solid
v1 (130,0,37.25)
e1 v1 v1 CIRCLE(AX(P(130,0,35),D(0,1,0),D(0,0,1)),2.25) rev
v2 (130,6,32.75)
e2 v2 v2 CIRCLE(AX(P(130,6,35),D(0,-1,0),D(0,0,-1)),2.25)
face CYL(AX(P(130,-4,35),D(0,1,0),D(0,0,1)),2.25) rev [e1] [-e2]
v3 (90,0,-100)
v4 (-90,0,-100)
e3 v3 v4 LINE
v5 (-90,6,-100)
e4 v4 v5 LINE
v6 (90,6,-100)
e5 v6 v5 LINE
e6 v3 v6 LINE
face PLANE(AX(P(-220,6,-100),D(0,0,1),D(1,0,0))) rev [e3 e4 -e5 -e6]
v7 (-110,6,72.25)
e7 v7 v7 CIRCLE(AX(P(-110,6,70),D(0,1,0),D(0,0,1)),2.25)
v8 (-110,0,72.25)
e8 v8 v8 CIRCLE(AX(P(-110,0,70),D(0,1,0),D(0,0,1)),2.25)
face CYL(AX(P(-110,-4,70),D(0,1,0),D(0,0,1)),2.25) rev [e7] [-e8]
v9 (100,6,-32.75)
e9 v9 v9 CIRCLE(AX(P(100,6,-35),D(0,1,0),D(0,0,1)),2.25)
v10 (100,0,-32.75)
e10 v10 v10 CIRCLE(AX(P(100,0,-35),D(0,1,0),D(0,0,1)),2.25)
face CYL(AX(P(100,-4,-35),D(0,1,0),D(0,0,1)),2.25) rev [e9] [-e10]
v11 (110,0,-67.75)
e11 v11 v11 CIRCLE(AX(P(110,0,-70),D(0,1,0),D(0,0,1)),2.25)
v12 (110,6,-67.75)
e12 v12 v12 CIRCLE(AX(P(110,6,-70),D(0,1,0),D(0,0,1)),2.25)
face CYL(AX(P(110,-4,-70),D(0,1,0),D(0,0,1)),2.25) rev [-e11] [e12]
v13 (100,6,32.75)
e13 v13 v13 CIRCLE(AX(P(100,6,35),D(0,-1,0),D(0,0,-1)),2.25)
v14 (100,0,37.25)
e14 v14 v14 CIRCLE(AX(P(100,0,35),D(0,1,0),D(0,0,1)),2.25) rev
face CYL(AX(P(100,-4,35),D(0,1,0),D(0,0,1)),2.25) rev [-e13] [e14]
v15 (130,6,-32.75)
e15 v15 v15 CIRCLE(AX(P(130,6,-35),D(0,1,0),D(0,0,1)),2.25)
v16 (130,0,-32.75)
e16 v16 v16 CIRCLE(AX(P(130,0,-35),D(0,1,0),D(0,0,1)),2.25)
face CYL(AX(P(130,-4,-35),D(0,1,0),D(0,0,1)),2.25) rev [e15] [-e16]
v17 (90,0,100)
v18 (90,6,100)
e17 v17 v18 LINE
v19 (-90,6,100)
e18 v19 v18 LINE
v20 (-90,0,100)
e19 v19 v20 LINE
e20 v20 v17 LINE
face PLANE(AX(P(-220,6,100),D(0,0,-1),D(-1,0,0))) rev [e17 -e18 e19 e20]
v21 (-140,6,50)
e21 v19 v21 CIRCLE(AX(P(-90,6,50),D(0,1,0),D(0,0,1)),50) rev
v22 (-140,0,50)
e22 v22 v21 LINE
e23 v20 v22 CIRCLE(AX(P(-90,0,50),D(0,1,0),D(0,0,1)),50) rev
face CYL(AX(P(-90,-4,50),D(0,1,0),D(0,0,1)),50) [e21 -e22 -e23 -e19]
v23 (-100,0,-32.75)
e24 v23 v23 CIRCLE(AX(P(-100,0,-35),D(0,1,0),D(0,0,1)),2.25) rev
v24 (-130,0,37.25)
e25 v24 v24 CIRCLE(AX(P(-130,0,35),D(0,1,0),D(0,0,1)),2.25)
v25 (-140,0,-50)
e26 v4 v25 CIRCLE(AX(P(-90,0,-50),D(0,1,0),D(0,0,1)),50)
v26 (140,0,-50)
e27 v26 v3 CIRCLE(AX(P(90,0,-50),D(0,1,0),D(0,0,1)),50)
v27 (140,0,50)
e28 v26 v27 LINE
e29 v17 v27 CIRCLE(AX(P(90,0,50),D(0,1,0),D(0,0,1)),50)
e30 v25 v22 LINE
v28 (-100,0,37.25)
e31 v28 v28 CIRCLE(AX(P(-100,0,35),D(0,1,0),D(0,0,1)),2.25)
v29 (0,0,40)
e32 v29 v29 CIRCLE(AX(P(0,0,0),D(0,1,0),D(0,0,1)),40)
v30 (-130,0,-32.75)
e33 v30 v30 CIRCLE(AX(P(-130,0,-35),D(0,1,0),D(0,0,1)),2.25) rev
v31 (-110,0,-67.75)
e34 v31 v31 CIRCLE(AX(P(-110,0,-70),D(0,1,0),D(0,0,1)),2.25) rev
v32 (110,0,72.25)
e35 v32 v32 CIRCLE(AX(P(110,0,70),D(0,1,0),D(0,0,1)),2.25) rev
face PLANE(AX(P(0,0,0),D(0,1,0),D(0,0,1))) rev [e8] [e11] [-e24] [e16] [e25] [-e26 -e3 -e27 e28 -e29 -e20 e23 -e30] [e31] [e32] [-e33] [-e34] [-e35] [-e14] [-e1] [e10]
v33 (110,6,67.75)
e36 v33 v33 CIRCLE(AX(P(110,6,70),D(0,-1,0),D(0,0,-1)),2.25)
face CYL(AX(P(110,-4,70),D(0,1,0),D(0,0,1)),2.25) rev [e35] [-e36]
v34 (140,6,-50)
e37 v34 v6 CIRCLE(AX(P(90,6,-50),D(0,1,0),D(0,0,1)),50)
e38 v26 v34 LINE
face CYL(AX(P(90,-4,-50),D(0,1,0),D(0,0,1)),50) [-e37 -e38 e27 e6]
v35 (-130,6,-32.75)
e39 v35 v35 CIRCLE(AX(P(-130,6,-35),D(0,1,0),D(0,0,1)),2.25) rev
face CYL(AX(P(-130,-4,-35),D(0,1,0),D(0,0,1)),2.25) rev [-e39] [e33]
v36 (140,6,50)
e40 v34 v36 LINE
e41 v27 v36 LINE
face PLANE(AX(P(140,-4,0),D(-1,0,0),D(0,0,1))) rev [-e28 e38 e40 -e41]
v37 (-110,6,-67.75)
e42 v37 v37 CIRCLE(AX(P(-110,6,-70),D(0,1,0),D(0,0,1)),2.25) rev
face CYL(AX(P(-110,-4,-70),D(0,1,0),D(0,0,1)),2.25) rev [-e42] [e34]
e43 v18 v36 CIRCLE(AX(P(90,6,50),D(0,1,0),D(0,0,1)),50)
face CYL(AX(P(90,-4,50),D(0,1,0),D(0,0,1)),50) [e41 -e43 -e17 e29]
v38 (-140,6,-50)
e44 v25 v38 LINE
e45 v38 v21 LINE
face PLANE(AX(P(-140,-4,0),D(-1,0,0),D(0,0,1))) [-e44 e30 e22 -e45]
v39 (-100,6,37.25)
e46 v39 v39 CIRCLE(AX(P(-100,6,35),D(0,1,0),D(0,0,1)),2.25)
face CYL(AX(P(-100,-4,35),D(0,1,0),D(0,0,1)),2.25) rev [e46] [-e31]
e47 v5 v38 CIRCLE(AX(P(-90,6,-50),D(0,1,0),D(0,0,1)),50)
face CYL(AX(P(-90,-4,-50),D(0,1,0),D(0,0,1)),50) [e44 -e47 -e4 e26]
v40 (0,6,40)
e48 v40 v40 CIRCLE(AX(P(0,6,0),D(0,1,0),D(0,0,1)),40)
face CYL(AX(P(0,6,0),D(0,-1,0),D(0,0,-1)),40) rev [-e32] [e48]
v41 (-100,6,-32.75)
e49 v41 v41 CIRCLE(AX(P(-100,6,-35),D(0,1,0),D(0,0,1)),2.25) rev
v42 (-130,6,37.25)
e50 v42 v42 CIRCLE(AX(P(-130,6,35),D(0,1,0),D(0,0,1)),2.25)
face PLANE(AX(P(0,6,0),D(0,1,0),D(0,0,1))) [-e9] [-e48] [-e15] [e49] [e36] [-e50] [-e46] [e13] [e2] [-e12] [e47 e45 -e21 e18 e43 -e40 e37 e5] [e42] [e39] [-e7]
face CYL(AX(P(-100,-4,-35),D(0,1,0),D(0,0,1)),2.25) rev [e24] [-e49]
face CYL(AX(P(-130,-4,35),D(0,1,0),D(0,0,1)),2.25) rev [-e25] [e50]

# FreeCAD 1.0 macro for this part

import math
import FreeCAD as App
import Part
import Sketcher
from FreeCAD import Vector

doc = App.newDocument("Part")
params = doc.addObject("Spreadsheet::Sheet", "Params")
for row, (alias, value) in enumerate([
    ("sketch1_diameter", "80 mm"),
    ("sketch1_width", "440 mm"),
    ("sketch1_height", "200 mm"),
    ("pad1_length", "6 mm"),
    ("sketch2_radius", "50 mm"),
    ("sketch2_diameter", "4.5 mm"),
    ("sketch2_width", "130 mm"),
    ("sketch2_height", "100 mm"),
    ("pocket1_length", "10 mm"),
], start=1):
    params.set(f"A{row}", alias)
    params.set(f"B{row}", "=" + value)
    params.setAlias(f"B{row}", alias)

body = doc.addObject("PartDesign::Body", "Body")

sketch1 = body.newObject("Sketcher::SketchObject", "Sketch")
sketch1.AttachmentSupport = (doc.getObject("XZ_Plane"), [""])
sketch1.MapMode = "FlatFace"
sketch1.addGeometry([
    Part.LineSegment(Vector(-220, -100, 0), Vector(-220, 100, 0)),
    Part.LineSegment(Vector(-220, 100, 0), Vector(220, 100, 0)),
    Part.LineSegment(Vector(220, 100, 0), Vector(220, -100, 0)),
    Part.LineSegment(Vector(220, -100, 0), Vector(-220, -100, 0)),
    Part.Circle(Vector(0, 0, 0), Vector(0, 0, 1), 40),
], False)
sketch1.addConstraint([
    Sketcher.Constraint("Coincident", 0, 2, 1, 1),
    Sketcher.Constraint("Coincident", 1, 2, 2, 1),
    Sketcher.Constraint("Coincident", 2, 2, 3, 1),
    Sketcher.Constraint("Coincident", 3, 2, 0, 1),
    Sketcher.Constraint("Vertical", 0),
    Sketcher.Constraint("Horizontal", 1),
    Sketcher.Constraint("Vertical", 2),
    Sketcher.Constraint("Horizontal", 3),
    Sketcher.Constraint("Coincident", 4, 3, -1, 1),
    Sketcher.Constraint("Symmetric", 0, 2, 2, 2, -1, 1),
    Sketcher.Constraint("Diameter", 4, 80.0),
    Sketcher.Constraint("DistanceX", 1, 1, 1, 2, 440.0),
    Sketcher.Constraint("DistanceY", 0, 1, 0, 2, 200.0),
])
sketch1.setExpression("Constraints[10]", "Params.sketch1_diameter")
sketch1.setExpression("Constraints[11]", "Params.sketch1_width")
sketch1.setExpression("Constraints[12]", "Params.sketch1_height")
pad1 = body.newObject("PartDesign::Pad", "Pad")
pad1.Profile = sketch1
pad1.setExpression("Length", "Params.pad1_length")
pad1.Reversed = True

sketch2 = body.newObject("Sketcher::SketchObject", "Sketch001")
sketch2.AttachmentSupport = (doc.getObject("XZ_Plane"), [""])
sketch2.MapMode = "FlatFace"
sketch2.AttachmentOffset = App.Placement(Vector(0, 0, -6), App.Rotation())
sketch2.addGeometry([
    Part.LineSegment(Vector(-140, 50, 0), Vector(-140, -50, 0)),
    Part.ArcOfCircle(Part.Circle(Vector(-90, -50, 0), Vector(0, 0, 1), 50), math.radians(-180), math.radians(-90)),
    Part.LineSegment(Vector(-90, -100, 0), Vector(-220, -100, 0)),
    Part.LineSegment(Vector(-220, -100, 0), Vector(-220, 100, 0)),
    Part.LineSegment(Vector(-220, 100, 0), Vector(-90, 100, 0)),
    Part.ArcOfCircle(Part.Circle(Vector(-90, 50, 0), Vector(0, 0, 1), 50), math.radians(90), math.radians(180)),
    Part.LineSegment(Vector(220, -100, 0), Vector(90, -100, 0)),
    Part.ArcOfCircle(Part.Circle(Vector(90, -50, 0), Vector(0, 0, 1), 50), math.radians(-90), math.radians(0)),
    Part.LineSegment(Vector(140, -50, 0), Vector(140, 50, 0)),
    Part.ArcOfCircle(Part.Circle(Vector(90, 50, 0), Vector(0, 0, 1), 50), math.radians(0), math.radians(90)),
    Part.LineSegment(Vector(90, 100, 0), Vector(220, 100, 0)),
    Part.LineSegment(Vector(220, 100, 0), Vector(220, -100, 0)),
    Part.Circle(Vector(-130, -35, 0), Vector(0, 0, 1), 2.2),
    Part.Circle(Vector(-100, -35, 0), Vector(0, 0, 1), 2.2),
    Part.Circle(Vector(-110, -70, 0), Vector(0, 0, 1), 2.2),
    Part.Circle(Vector(110, -70, 0), Vector(0, 0, 1), 2.2),
    Part.Circle(Vector(100, -35, 0), Vector(0, 0, 1), 2.2),
    Part.Circle(Vector(130, -35, 0), Vector(0, 0, 1), 2.2),
    Part.Circle(Vector(130, 35, 0), Vector(0, 0, 1), 2.2),
    Part.Circle(Vector(100, 35, 0), Vector(0, 0, 1), 2.2),
    Part.Circle(Vector(110, 70, 0), Vector(0, 0, 1), 2.2),
    Part.Circle(Vector(-110, 70, 0), Vector(0, 0, 1), 2.2),
    Part.Circle(Vector(-100, 35, 0), Vector(0, 0, 1), 2.2),
    Part.Circle(Vector(-130, 35, 0), Vector(0, 0, 1), 2.2),
], False)
sketch2.addConstraint([
    Sketcher.Constraint("Tangent", 0, 2, 1, 1),
    Sketcher.Constraint("Tangent", 1, 2, 2, 1),
    Sketcher.Constraint("Coincident", 2, 2, 3, 1),
    Sketcher.Constraint("Coincident", 3, 2, 4, 1),
    Sketcher.Constraint("Tangent", 4, 2, 5, 1),
    Sketcher.Constraint("Tangent", 5, 2, 0, 1),
    Sketcher.Constraint("Tangent", 6, 2, 7, 1),
    Sketcher.Constraint("Tangent", 7, 2, 8, 1),
    Sketcher.Constraint("Tangent", 8, 2, 9, 1),
    Sketcher.Constraint("Tangent", 9, 2, 10, 1),
    Sketcher.Constraint("Coincident", 10, 2, 11, 1),
    Sketcher.Constraint("Coincident", 11, 2, 6, 1),
    Sketcher.Constraint("Vertical", 0),
    Sketcher.Constraint("Horizontal", 2),
    Sketcher.Constraint("Vertical", 3),
    Sketcher.Constraint("Horizontal", 4),
    Sketcher.Constraint("Horizontal", 6),
    Sketcher.Constraint("Vertical", 8),
    Sketcher.Constraint("Horizontal", 10),
    Sketcher.Constraint("Vertical", 11),
    Sketcher.Constraint("Equal", 1, 5),
    Sketcher.Constraint("Equal", 5, 7),
    Sketcher.Constraint("Equal", 7, 9),
    Sketcher.Constraint("Equal", 12, 13),
    Sketcher.Constraint("Equal", 13, 14),
    Sketcher.Constraint("Equal", 14, 15),
    Sketcher.Constraint("Equal", 15, 16),
    Sketcher.Constraint("Equal", 16, 17),
    Sketcher.Constraint("Equal", 17, 18),
    Sketcher.Constraint("Equal", 18, 19),
    Sketcher.Constraint("Equal", 19, 20),
    Sketcher.Constraint("Equal", 20, 21),
    Sketcher.Constraint("Equal", 21, 22),
    Sketcher.Constraint("Equal", 22, 23),
    Sketcher.Constraint("Symmetric", 5, 3, 7, 3, -1, 1),
    Sketcher.Constraint("Symmetric", 12, 3, 18, 3, -1, 1),
    Sketcher.Constraint("Symmetric", 13, 3, 19, 3, -1, 1),
    Sketcher.Constraint("Symmetric", 14, 3, 20, 3, -1, 1),
    Sketcher.Constraint("Symmetric", 15, 3, 21, 3, -1, 1),
    Sketcher.Constraint("Symmetric", 16, 3, 22, 3, -1, 1),
    Sketcher.Constraint("Symmetric", 17, 3, 23, 3, -1, 1),
    Sketcher.Constraint("Symmetric", 2, 2, 10, 2, -1, 1),
    Sketcher.Constraint("Symmetric", 14, 3, 15, 3, -2),
    Sketcher.Constraint("Symmetric", 13, 3, 16, 3, -2),
    Sketcher.Constraint("Symmetric", 12, 3, 17, 3, -2),
    Sketcher.Constraint("Horizontal", 1, 3, 7, 3),
    Sketcher.Constraint("Horizontal", 12, 3, 13, 3),
    Sketcher.Constraint("Radius", 1, 50.0),
    Sketcher.Constraint("Diameter", 12, 4.5),
    Sketcher.Constraint("DistanceX", 2, 2, 2, 1, 130.0),
    Sketcher.Constraint("DistanceY", 0, 2, 0, 1, 100.0),
    Sketcher.Constraint("DistanceX", 1, 3, -1, 1, 90.0),
    Sketcher.Constraint("DistanceX", 12, 3, -1, 1, 130.0),
    Sketcher.Constraint("DistanceY", 12, 3, -1, 1, 35.0),
    Sketcher.Constraint("DistanceX", 13, 3, -1, 1, 100.0),
    Sketcher.Constraint("DistanceX", 14, 3, -1, 1, 110.0),
    Sketcher.Constraint("DistanceY", 14, 3, -1, 1, 70.0),
])
sketch2.setExpression("Constraints[47]", "Params.sketch2_radius")
sketch2.setExpression("Constraints[48]", "Params.sketch2_diameter")
sketch2.setExpression("Constraints[49]", "Params.sketch2_width")
sketch2.setExpression("Constraints[50]", "Params.sketch2_height")
pocket1 = body.newObject("PartDesign::Pocket", "Pocket")
pocket1.Profile = sketch2
pocket1.setExpression("Length", "Params.pocket1_length")
pocket1.Reversed = True

doc.recompute()
